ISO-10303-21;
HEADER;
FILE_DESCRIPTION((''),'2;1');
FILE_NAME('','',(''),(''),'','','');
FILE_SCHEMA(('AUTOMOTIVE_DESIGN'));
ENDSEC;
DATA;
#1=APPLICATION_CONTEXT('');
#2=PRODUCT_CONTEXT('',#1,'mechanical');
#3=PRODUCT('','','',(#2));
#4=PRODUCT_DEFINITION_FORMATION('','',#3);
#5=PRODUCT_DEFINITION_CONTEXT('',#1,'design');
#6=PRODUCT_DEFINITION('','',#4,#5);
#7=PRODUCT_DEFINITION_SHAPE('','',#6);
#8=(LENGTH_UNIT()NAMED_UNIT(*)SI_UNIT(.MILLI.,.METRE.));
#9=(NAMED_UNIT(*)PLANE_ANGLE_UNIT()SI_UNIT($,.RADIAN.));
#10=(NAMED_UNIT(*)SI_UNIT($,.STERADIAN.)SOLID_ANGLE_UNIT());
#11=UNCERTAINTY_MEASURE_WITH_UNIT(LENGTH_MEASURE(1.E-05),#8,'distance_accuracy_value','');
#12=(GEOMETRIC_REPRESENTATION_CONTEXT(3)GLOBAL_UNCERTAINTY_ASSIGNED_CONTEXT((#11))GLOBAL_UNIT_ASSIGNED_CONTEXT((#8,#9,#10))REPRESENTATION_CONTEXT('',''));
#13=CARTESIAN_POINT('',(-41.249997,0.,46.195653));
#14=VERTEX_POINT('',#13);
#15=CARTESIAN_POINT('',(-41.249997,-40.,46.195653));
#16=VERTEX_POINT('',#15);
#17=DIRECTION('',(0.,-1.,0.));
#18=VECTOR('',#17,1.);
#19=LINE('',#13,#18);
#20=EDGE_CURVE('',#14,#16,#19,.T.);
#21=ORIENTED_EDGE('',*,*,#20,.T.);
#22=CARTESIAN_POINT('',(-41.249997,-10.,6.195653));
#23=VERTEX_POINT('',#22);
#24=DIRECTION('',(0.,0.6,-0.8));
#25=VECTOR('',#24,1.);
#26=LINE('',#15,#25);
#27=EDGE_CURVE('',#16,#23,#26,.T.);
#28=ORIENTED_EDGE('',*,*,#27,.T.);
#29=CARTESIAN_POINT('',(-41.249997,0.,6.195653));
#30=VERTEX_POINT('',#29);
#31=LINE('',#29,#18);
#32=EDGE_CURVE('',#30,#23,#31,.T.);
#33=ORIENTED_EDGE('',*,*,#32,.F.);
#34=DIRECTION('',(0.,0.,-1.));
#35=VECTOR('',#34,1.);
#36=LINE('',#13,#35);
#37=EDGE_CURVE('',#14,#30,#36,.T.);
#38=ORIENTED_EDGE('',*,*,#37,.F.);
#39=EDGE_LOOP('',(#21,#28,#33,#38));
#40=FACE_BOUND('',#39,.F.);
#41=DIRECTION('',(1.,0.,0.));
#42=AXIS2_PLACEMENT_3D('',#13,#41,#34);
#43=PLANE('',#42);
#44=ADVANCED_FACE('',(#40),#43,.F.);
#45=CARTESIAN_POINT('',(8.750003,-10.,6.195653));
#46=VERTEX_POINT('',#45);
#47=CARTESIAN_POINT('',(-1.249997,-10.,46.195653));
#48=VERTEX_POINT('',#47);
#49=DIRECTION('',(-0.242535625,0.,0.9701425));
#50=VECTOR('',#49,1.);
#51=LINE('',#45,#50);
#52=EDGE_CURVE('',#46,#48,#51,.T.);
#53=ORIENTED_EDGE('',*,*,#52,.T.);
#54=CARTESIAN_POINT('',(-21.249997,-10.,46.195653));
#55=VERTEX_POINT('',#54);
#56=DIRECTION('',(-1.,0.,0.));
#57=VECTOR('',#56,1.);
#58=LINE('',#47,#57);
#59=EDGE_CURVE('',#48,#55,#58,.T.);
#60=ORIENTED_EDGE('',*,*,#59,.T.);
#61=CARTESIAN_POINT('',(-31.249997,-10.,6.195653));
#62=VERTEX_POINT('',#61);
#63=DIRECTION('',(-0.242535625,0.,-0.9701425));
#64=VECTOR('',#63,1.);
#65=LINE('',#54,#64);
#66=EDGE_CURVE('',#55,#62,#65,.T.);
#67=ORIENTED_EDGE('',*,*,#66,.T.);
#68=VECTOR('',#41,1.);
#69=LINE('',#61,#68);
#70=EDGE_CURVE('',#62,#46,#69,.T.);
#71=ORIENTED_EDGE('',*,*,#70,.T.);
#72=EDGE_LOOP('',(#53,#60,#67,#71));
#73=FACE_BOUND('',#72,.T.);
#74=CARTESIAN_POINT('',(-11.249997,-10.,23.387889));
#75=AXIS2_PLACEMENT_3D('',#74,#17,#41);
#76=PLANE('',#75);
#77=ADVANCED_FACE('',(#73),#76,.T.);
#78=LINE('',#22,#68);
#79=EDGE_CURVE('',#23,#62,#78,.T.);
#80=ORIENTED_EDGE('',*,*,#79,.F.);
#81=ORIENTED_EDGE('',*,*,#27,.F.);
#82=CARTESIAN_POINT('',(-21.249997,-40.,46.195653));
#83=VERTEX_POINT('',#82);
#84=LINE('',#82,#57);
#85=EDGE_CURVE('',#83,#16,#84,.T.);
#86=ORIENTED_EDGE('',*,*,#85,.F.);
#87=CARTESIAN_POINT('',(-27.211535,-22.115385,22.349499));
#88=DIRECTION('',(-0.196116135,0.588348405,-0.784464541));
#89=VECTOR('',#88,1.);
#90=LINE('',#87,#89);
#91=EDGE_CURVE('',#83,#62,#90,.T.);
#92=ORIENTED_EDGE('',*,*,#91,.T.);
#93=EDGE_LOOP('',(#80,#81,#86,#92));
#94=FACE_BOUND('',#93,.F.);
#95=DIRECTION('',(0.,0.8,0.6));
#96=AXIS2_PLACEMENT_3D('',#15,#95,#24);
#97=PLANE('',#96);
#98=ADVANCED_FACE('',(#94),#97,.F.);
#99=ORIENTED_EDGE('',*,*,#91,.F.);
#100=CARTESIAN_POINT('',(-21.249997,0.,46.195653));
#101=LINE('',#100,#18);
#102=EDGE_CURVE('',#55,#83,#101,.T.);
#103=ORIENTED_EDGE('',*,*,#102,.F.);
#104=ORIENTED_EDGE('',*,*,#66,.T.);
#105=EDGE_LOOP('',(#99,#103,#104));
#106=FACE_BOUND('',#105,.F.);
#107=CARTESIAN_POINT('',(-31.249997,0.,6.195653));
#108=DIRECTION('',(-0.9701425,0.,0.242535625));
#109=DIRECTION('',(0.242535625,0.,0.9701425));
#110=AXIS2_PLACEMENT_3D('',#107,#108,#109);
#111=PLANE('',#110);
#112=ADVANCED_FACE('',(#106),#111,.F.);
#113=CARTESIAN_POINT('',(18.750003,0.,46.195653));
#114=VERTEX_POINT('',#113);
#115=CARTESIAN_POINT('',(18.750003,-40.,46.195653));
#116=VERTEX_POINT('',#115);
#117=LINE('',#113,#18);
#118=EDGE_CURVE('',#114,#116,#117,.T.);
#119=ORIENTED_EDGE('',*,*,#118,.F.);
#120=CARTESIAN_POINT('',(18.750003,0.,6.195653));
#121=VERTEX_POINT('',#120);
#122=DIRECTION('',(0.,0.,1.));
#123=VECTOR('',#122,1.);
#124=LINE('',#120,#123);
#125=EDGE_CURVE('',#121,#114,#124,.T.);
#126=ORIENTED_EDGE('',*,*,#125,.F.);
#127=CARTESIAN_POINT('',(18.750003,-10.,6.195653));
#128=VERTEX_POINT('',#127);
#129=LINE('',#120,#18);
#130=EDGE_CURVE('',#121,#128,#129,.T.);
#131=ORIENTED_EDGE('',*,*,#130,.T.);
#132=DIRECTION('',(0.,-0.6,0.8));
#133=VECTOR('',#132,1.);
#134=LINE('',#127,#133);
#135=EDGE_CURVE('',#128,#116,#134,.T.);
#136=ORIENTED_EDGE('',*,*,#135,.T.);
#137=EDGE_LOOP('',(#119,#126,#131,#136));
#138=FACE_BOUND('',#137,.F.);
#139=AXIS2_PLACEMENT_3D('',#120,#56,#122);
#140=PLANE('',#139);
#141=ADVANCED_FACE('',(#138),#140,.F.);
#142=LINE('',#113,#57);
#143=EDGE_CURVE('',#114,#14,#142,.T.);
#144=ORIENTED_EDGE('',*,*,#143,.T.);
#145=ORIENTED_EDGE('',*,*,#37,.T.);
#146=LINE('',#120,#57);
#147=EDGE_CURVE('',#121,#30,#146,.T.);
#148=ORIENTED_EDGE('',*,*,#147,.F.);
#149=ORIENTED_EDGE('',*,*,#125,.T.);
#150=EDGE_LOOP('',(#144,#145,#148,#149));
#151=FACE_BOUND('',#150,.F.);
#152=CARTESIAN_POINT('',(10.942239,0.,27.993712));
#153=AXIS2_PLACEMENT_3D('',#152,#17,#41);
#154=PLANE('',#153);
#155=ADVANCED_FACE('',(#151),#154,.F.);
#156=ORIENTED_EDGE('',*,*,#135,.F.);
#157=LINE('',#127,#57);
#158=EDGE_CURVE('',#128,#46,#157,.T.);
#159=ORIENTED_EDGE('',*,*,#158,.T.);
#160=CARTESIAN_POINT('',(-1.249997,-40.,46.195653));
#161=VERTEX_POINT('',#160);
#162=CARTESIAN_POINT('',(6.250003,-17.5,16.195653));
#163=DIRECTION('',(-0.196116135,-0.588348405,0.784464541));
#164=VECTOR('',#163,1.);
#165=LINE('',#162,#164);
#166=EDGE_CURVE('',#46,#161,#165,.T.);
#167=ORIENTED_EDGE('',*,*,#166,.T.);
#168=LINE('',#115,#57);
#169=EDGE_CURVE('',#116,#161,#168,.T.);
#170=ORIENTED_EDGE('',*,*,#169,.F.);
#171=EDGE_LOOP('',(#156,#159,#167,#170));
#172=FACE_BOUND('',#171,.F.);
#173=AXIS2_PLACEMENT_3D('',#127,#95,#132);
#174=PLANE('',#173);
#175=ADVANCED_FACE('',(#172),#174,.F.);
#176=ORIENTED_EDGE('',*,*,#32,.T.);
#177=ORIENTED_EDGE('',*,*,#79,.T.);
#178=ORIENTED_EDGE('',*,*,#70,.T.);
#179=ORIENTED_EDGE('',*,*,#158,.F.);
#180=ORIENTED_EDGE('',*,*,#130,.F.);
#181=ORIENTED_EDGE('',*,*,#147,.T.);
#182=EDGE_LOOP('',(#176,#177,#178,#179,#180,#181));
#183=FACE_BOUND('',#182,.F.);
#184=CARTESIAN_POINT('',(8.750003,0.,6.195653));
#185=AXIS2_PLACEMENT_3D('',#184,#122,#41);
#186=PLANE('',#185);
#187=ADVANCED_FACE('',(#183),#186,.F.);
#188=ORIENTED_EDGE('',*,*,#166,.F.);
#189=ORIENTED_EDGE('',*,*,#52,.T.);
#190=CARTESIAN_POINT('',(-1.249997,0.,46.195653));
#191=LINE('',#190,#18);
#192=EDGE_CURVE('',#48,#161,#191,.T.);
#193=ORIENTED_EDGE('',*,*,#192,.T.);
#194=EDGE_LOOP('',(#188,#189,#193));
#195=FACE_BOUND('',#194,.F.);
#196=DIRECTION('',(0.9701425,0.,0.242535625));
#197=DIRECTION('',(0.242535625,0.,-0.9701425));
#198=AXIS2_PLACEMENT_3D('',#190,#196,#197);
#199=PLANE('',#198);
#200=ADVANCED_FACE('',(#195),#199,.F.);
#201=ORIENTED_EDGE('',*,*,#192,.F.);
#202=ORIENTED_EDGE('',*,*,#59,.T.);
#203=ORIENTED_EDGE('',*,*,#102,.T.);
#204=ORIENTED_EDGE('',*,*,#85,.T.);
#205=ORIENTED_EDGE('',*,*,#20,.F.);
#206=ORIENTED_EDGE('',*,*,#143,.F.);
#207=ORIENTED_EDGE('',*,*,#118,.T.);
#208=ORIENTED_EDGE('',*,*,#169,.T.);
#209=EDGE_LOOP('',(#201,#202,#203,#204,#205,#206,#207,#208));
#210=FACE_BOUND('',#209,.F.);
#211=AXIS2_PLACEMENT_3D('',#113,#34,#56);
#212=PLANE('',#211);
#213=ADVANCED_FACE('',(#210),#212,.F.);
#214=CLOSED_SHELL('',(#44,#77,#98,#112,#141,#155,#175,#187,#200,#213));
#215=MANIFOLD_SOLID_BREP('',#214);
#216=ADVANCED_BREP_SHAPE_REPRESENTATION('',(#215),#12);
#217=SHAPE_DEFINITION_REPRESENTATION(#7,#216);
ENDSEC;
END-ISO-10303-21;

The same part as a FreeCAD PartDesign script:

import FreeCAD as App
import Part
import Sketcher

V = App.Vector

doc = App.newDocument("Part")
body = doc.addObject("PartDesign::Body", "Body")

sketch1 = body.newObject("Sketcher::SketchObject", "Sketch")
sketch1.AttachmentSupport = (doc.getObject("XZ_Plane"), [""])
sketch1.MapMode = "FlatFace"
sketch1.addGeometry(Part.LineSegment(V(-1.249997, 46.195653, 0), V(-21.249997, 46.195653, 0)), False)
sketch1.addGeometry(Part.LineSegment(V(-21.249997, 46.195653, 0), V(-31.249997, 6.195653, 0)), False)
sketch1.addGeometry(Part.LineSegment(V(-31.249997, 6.195653, 0), V(8.750003, 6.195653, 0)), False)
sketch1.addGeometry(Part.LineSegment(V(8.750003, 6.195653, 0), V(-1.249997, 46.195653, 0)), False)
sketch1.addConstraint(Sketcher.Constraint("Coincident", 0, 2, 1, 1))
sketch1.addConstraint(Sketcher.Constraint("Coincident", 1, 2, 2, 1))
sketch1.addConstraint(Sketcher.Constraint("Coincident", 2, 2, 3, 1))
sketch1.addConstraint(Sketcher.Constraint("Coincident", 3, 2, 0, 1))
sketch1.addConstraint(Sketcher.Constraint("Horizontal", 0))
sketch1.addConstraint(Sketcher.Constraint("Horizontal", 2))
sketch1.addConstraint(Sketcher.Constraint("Equal", 1, 3))
sketch1.addConstraint(Sketcher.Constraint("DistanceX", 0, 2, 0, 1, 20.0))
sketch1.addConstraint(Sketcher.Constraint("DistanceX", 2, 1, 2, 2, 40.0))
sketch1.addConstraint(Sketcher.Constraint("DistanceY", 1, 2, 0, 2, 40.0))
sketch1.addConstraint(Sketcher.Constraint("DistanceX", 0, 2, -1, 1, 21.249997))
sketch1.addConstraint(Sketcher.Constraint("DistanceY", -1, 1, 0, 2, 46.195653))
pad1 = body.newObject("PartDesign::Pad", "Pad")
pad1.Profile = sketch1
pad1.Length = 10

sketch2 = body.newObject("Sketcher::SketchObject", "Sketch001")
sketch2.AttachmentSupport = (doc.getObject("XZ_Plane"), [""])
sketch2.MapMode = "FlatFace"
sketch2.addGeometry(Part.LineSegment(V(-21.249997, 46.195653, 0), V(-41.249997, 46.195653, 0)), False)
sketch2.addGeometry(Part.LineSegment(V(-41.249997, 46.195653, 0), V(-41.249997, 6.195653, 0)), False)
sketch2.addGeometry(Part.LineSegment(V(-41.249997, 6.195653, 0), V(-31.249997, 6.195653, 0)), False)
sketch2.addGeometry(Part.LineSegment(V(-31.249997, 6.195653, 0), V(-21.249997, 46.195653, 0)), False)
sketch2.addConstraint(Sketcher.Constraint("Coincident", 0, 2, 1, 1))
sketch2.addConstraint(Sketcher.Constraint("Coincident", 1, 2, 2, 1))
sketch2.addConstraint(Sketcher.Constraint("Coincident", 2, 2, 3, 1))
sketch2.addConstraint(Sketcher.Constraint("Coincident", 3, 2, 0, 1))
sketch2.addConstraint(Sketcher.Constraint("Horizontal", 0))
sketch2.addConstraint(Sketcher.Constraint("Vertical", 1))
sketch2.addConstraint(Sketcher.Constraint("Horizontal", 2))
sketch2.addConstraint(Sketcher.Constraint("DistanceX", 0, 2, 0, 1, 20.0))
sketch2.addConstraint(Sketcher.Constraint("DistanceX", 2, 1, 2, 2, 10.0))
sketch2.addConstraint(Sketcher.Constraint("DistanceY", 1, 2, 1, 1, 40.0))
sketch2.addConstraint(Sketcher.Constraint("DistanceX", 0, 2, -1, 1, 41.249997))
sketch2.addConstraint(Sketcher.Constraint("DistanceY", -1, 1, 0, 2, 46.195653))
pad2 = body.newObject("PartDesign::Pad", "Pad001")
pad2.Profile = sketch2
pad2.Length = 40

sketch3 = body.newObject("Sketcher::SketchObject", "Sketch002")
sketch3.AttachmentSupport = (doc.getObject("XZ_Plane"), [""])
sketch3.MapMode = "FlatFace"
sketch3.addGeometry(Part.LineSegment(V(18.750003, 46.195653, 0), V(-1.249997, 46.195653, 0)), False)
sketch3.addGeometry(Part.LineSegment(V(-1.249997, 46.195653, 0), V(8.750003, 6.195653, 0)), False)
sketch3.addGeometry(Part.LineSegment(V(8.750003, 6.195653, 0), V(18.750003, 6.195653, 0)), False)
sketch3.addGeometry(Part.LineSegment(V(18.750003, 6.195653, 0), V(18.750003, 46.195653, 0)), False)
sketch3.addConstraint(Sketcher.Constraint("Coincident", 0, 2, 1, 1))
sketch3.addConstraint(Sketcher.Constraint("Coincident", 1, 2, 2, 1))
sketch3.addConstraint(Sketcher.Constraint("Coincident", 2, 2, 3, 1))
sketch3.addConstraint(Sketcher.Constraint("Coincident", 3, 2, 0, 1))
sketch3.addConstraint(Sketcher.Constraint("Horizontal", 0))
sketch3.addConstraint(Sketcher.Constraint("Horizontal", 2))
sketch3.addConstraint(Sketcher.Constraint("Vertical", 3))
sketch3.addConstraint(Sketcher.Constraint("DistanceX", 0, 2, 0, 1, 20.0))
sketch3.addConstraint(Sketcher.Constraint("DistanceX", 2, 1, 2, 2, 10.0))
sketch3.addConstraint(Sketcher.Constraint("DistanceY", 3, 1, 3, 2, 40.0))
sketch3.addConstraint(Sketcher.Constraint("DistanceX", 0, 2, -1, 1, 1.249997))
sketch3.addConstraint(Sketcher.Constraint("DistanceY", -1, 1, 0, 2, 46.195653))
pad3 = body.newObject("PartDesign::Pad", "Pad002")
pad3.Profile = sketch3
pad3.Length = 40

sketch4 = body.newObject("Sketcher::SketchObject", "Sketch003")
sketch4.AttachmentSupport = (doc.getObject("YZ_Plane"), [""])
sketch4.MapMode = "FlatFace"
sketch4.AttachmentOffset = App.Placement(V(0, 0, -41.249997), App.Rotation())
sketch4.addGeometry(Part.LineSegment(V(-40, 46.195653, 0), V(-20, 6.195653, 0)), False)
sketch4.addGeometry(Part.LineSegment(V(-20, 6.195653, 0), V(-40, 6.195653, 0)), False)
sketch4.addGeometry(Part.LineSegment(V(-40, 6.195653, 0), V(-40, 46.195653, 0)), False)
sketch4.addConstraint(Sketcher.Constraint("Coincident", 0, 2, 1, 1))
sketch4.addConstraint(Sketcher.Constraint("Coincident", 1, 2, 2, 1))
sketch4.addConstraint(Sketcher.Constraint("Coincident", 2, 2, 0, 1))
sketch4.addConstraint(Sketcher.Constraint("Horizontal", 1))
sketch4.addConstraint(Sketcher.Constraint("Vertical", 2))
sketch4.addConstraint(Sketcher.Constraint("DistanceX", 1, 2, 1, 1, 20.0))
sketch4.addConstraint(Sketcher.Constraint("DistanceY", 2, 1, 2, 2, 40.0))
sketch4.addConstraint(Sketcher.Constraint("DistanceX", 0, 2, -1, 1, 20.0))
sketch4.addConstraint(Sketcher.Constraint("DistanceY", -1, 1, 0, 2, 6.195653))
pocket1 = body.newObject("PartDesign::Pocket", "Pocket")
pocket1.Profile = sketch4
pocket1.Length = 25
pocket1.Reversed = True

sketch5 = body.newObject("Sketcher::SketchObject", "Sketch004")
sketch5.AttachmentSupport = (doc.getObject("YZ_Plane"), [""])
sketch5.MapMode = "FlatFace"
sketch5.AttachmentOffset = App.Placement(V(0, 0, 18.750003), App.Rotation())
sketch5.addGeometry(Part.LineSegment(V(-20, 6.195653, 0), V(-40, 46.195653, 0)), False)
sketch5.addGeometry(Part.LineSegment(V(-40, 46.195653, 0), V(-40, 6.195653, 0)), False)
sketch5.addGeometry(Part.LineSegment(V(-40, 6.195653, 0), V(-20, 6.195653, 0)), False)
sketch5.addConstraint(Sketcher.Constraint("Coincident", 0, 2, 1, 1))
sketch5.addConstraint(Sketcher.Constraint("Coincident", 1, 2, 2, 1))
sketch5.addConstraint(Sketcher.Constraint("Coincident", 2, 2, 0, 1))
sketch5.addConstraint(Sketcher.Constraint("Vertical", 1))
sketch5.addConstraint(Sketcher.Constraint("Horizontal", 2))
sketch5.addConstraint(Sketcher.Constraint("DistanceX", 2, 1, 2, 2, 20.0))
sketch5.addConstraint(Sketcher.Constraint("DistanceY", 1, 2, 1, 1, 40.0))
sketch5.addConstraint(Sketcher.Constraint("DistanceX", 0, 2, -1, 1, 40.0))
sketch5.addConstraint(Sketcher.Constraint("DistanceY", -1, 1, 0, 2, 46.195653))
pocket2 = body.newObject("PartDesign::Pocket", "Pocket001")
pocket2.Profile = sketch5
pocket2.Length = 25

sketch6 = body.newObject("Sketcher::SketchObject", "Sketch005")
sketch6.AttachmentSupport = (doc.getObject("YZ_Plane"), [""])
sketch6.MapMode = "FlatFace"
sketch6.AttachmentOffset = App.Placement(V(0, 0, -41.249997), App.Rotation())
sketch6.addGeometry(Part.LineSegment(V(-20, 6.195653, 0), V(-40, 46.195653, 0)), False)
sketch6.addGeometry(Part.LineSegment(V(-40, 46.195653, 0), V(-10, 6.195653, 0)), False)
sketch6.addGeometry(Part.LineSegment(V(-10, 6.195653, 0), V(-20, 6.195653, 0)), False)
sketch6.addConstraint(Sketcher.Constraint("Coincident", 0, 2, 1, 1))
sketch6.addConstraint(Sketcher.Constraint("Coincident", 1, 2, 2, 1))
sketch6.addConstraint(Sketcher.Constraint("Coincident", 2, 2, 0, 1))
sketch6.addConstraint(Sketcher.Constraint("Horizontal", 2))
sketch6.addConstraint(Sketcher.Constraint("DistanceX", 2, 2, 2, 1, 10.0))
sketch6.addConstraint(Sketcher.Constraint("Distance", 1, 50.0))
sketch6.addConstraint(Sketcher.Constraint("DistanceX", 0, 2, -1, 1, 40.0))
sketch6.addConstraint(Sketcher.Constraint("DistanceX", 1, 2, -1, 1, 10.0))
sketch6.addConstraint(Sketcher.Constraint("DistanceY", -1, 1, 0, 2, 46.195653))
pocket3 = body.newObject("PartDesign::Pocket", "Pocket002")
pocket3.Profile = sketch6
pocket3.Length = 25
pocket3.Reversed = True

sketch7 = body.newObject("Sketcher::SketchObject", "Sketch006")
sketch7.AttachmentSupport = (doc.getObject("YZ_Plane"), [""])
sketch7.MapMode = "FlatFace"
sketch7.AttachmentOffset = App.Placement(V(0, 0, 18.750003), App.Rotation())
sketch7.addGeometry(Part.LineSegment(V(-10, 6.195653, 0), V(-40, 46.195653, 0)), False)
sketch7.addGeometry(Part.LineSegment(V(-40, 46.195653, 0), V(-20, 6.195653, 0)), False)
sketch7.addGeometry(Part.LineSegment(V(-20, 6.195653, 0), V(-10, 6.195653, 0)), False)
sketch7.addConstraint(Sketcher.Constraint("Coincident", 0, 2, 1, 1))
sketch7.addConstraint(Sketcher.Constraint("Coincident", 1, 2, 2, 1))
sketch7.addConstraint(Sketcher.Constraint("Coincident", 2, 2, 0, 1))
sketch7.addConstraint(Sketcher.Constraint("Horizontal", 2))
sketch7.addConstraint(Sketcher.Constraint("DistanceX", 2, 1, 2, 2, 10.0))
sketch7.addConstraint(Sketcher.Constraint("Distance", 0, 50.0))
sketch7.addConstraint(Sketcher.Constraint("DistanceX", 0, 2, -1, 1, 40.0))
sketch7.addConstraint(Sketcher.Constraint("DistanceX", 1, 2, -1, 1, 20.0))
sketch7.addConstraint(Sketcher.Constraint("DistanceY", -1, 1, 0, 2, 46.195653))
pocket4 = body.newObject("PartDesign::Pocket", "Pocket003")
pocket4.Profile = sketch7
pocket4.Length = 25

doc.recompute()
